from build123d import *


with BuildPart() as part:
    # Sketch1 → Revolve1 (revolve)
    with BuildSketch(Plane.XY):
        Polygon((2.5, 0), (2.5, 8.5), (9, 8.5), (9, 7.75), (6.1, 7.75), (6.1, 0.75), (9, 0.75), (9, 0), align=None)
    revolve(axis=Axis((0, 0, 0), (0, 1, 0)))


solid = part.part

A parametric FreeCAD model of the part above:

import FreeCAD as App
import Part
import Sketcher
from FreeCAD import Vector
Q = App.Units.Quantity

doc = App.newDocument("Part")
body = doc.addObject("PartDesign::Body", "Body")

# Sketch on XY plane
sketch1 = body.newObject("Sketcher::SketchObject", "Sketch")
sketch1.AttachmentSupport = (doc.getObject("XY_Plane"), [""])
sketch1.MapMode = "FlatFace"
sketch1.addGeometry([
    Part.LineSegment(Vector(2.5, 8.5, 0), Vector(2.5, 0, 0)),  # 0
    Part.LineSegment(Vector(2.5, 0, 0), Vector(9, 0, 0)),  # 1
    Part.LineSegment(Vector(9, 0, 0), Vector(9, 0.75, 0)),  # 2
    Part.LineSegment(Vector(9, 0.75, 0), Vector(6.1, 0.75, 0)),  # 3
    Part.LineSegment(Vector(6.1, 0.75, 0), Vector(6.1, 7.75, 0)),  # 4
    Part.LineSegment(Vector(6.1, 7.75, 0), Vector(9, 7.75, 0)),  # 5
    Part.LineSegment(Vector(9, 7.75, 0), Vector(9, 8.5, 0)),  # 6
    Part.LineSegment(Vector(9, 8.5, 0), Vector(2.5, 8.5, 0)),  # 7
], False)
sketch1.addConstraint([
    Sketcher.Constraint("Coincident", 0, 2, 1, 1),
    Sketcher.Constraint("Coincident", 1, 2, 2, 1),
    Sketcher.Constraint("Coincident", 2, 2, 3, 1),
    Sketcher.Constraint("Coincident", 3, 2, 4, 1),
    Sketcher.Constraint("Coincident", 4, 2, 5, 1),
    Sketcher.Constraint("Coincident", 5, 2, 6, 1),
    Sketcher.Constraint("Coincident", 6, 2, 7, 1),
    Sketcher.Constraint("Coincident", 7, 2, 0, 1),
    Sketcher.Constraint("Vertical", 0),
    Sketcher.Constraint("Horizontal", 1),
    Sketcher.Constraint("Vertical", 2),
    Sketcher.Constraint("Horizontal", 3),
    Sketcher.Constraint("Vertical", 4),
    Sketcher.Constraint("Horizontal", 5),
    Sketcher.Constraint("Vertical", 6),
    Sketcher.Constraint("Horizontal", 7),
    Sketcher.Constraint("PointOnObject", 0, 2, -1),
    Sketcher.Constraint("Vertical", 2, 2, 5, 2),
    Sketcher.Constraint("Equal", 2, 6),
    Sketcher.Constraint("DistanceY", 4, 1, 4, 2, Q("7 mm")),
    Sketcher.Constraint("DistanceX", 1, 1, 1, 2, Q("6.5 mm")),
    Sketcher.Constraint("DistanceX", 3, 2, 3, 1, Q("2.9 mm")),
    Sketcher.Constraint("DistanceY", 0, 2, 0, 1, Q("8.5 mm")),
    Sketcher.Constraint("DistanceX", -1, 1, 1, 2, Q("9 mm")),
])
revolution = body.newObject("PartDesign::Revolution", "Revolution")
revolution.Profile = sketch1
revolution.ReferenceAxis = (sketch1, ["V_Axis"])
revolution.Angle = 360

doc.recompute()
